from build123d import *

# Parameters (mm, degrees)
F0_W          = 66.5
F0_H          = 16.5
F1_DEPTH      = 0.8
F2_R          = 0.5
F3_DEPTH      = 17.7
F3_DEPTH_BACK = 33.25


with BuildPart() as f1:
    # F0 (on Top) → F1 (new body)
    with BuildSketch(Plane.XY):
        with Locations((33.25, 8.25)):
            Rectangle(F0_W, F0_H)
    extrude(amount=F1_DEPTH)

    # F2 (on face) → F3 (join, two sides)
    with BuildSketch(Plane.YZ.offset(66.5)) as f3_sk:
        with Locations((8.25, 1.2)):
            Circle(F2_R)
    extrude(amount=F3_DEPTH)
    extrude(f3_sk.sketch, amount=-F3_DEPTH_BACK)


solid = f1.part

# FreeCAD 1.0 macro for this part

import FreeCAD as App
import Part
import Sketcher
from FreeCAD import Vector
Q = App.Units.Quantity

doc = App.newDocument("Part")
body = doc.addObject("PartDesign::Body", "Body")

sketch1 = body.newObject("Sketcher::SketchObject", "Sketch")
sketch1.AttachmentSupport = (doc.getObject("XY_Plane"), [""])
sketch1.MapMode = "FlatFace"
sketch1.addGeometry(Part.LineSegment(Vector(0, 16, 0), Vector(0, 0, 0)), False)
sketch1.addGeometry(Part.LineSegment(Vector(0, 0, 0), Vector(66, 0, 0)), False)
sketch1.addGeometry(Part.LineSegment(Vector(66, 0, 0), Vector(66, 16, 0)), False)
sketch1.addGeometry(Part.LineSegment(Vector(66, 16, 0), Vector(0, 16, 0)), False)
sketch1.addConstraint(Sketcher.Constraint("Coincident", 0, 2, 1, 1))
sketch1.addConstraint(Sketcher.Constraint("Coincident", 1, 2, 2, 1))
sketch1.addConstraint(Sketcher.Constraint("Coincident", 2, 2, 3, 1))
sketch1.addConstraint(Sketcher.Constraint("Coincident", 3, 2, 0, 1))
sketch1.addConstraint(Sketcher.Constraint("Vertical", 0))
sketch1.addConstraint(Sketcher.Constraint("Horizontal", 1))
sketch1.addConstraint(Sketcher.Constraint("Vertical", 2))
sketch1.addConstraint(Sketcher.Constraint("Horizontal", 3))
sketch1.addConstraint(Sketcher.Constraint("Coincident", 0, 2, -1, 1))
sketch1.addConstraint(Sketcher.Constraint("DistanceX", 1, 1, 1, 2, Q("66.5 mm")))
sketch1.addConstraint(Sketcher.Constraint("DistanceY", 0, 2, 0, 1, Q("16.5 mm")))
pad1 = body.newObject("PartDesign::Pad", "Pad")
pad1.Profile = sketch1
pad1.Length = 0.8

sketch2 = body.newObject("Sketcher::SketchObject", "Sketch001")
sketch2.AttachmentSupport = (doc.getObject("YZ_Plane"), [""])
sketch2.MapMode = "FlatFace"
sketch2.AttachmentOffset = App.Placement(Vector(0, 0, 66.5), App.Rotation())
sketch2.addGeometry(Part.Circle(Vector(8.2, 1.2, 0), Vector(0, 0, 1), 0.5), False)
sketch2.addConstraint(Sketcher.Constraint("Diameter", 0, Q("1 mm")))
sketch2.addConstraint(Sketcher.Constraint("DistanceY", -1, 1, 0, 3, Q("1.2 mm")))
sketch2.addConstraint(Sketcher.Constraint("DistanceX", -1, 1, 0, 3, Q("8.25 mm")))
pad2 = body.newObject("PartDesign::Pad", "Pad001")
pad2.Profile = sketch2
pad2.Type = "TwoLengths"
pad2.Length = 17.7
pad2.Length2 = 33.25

doc.recompute()
